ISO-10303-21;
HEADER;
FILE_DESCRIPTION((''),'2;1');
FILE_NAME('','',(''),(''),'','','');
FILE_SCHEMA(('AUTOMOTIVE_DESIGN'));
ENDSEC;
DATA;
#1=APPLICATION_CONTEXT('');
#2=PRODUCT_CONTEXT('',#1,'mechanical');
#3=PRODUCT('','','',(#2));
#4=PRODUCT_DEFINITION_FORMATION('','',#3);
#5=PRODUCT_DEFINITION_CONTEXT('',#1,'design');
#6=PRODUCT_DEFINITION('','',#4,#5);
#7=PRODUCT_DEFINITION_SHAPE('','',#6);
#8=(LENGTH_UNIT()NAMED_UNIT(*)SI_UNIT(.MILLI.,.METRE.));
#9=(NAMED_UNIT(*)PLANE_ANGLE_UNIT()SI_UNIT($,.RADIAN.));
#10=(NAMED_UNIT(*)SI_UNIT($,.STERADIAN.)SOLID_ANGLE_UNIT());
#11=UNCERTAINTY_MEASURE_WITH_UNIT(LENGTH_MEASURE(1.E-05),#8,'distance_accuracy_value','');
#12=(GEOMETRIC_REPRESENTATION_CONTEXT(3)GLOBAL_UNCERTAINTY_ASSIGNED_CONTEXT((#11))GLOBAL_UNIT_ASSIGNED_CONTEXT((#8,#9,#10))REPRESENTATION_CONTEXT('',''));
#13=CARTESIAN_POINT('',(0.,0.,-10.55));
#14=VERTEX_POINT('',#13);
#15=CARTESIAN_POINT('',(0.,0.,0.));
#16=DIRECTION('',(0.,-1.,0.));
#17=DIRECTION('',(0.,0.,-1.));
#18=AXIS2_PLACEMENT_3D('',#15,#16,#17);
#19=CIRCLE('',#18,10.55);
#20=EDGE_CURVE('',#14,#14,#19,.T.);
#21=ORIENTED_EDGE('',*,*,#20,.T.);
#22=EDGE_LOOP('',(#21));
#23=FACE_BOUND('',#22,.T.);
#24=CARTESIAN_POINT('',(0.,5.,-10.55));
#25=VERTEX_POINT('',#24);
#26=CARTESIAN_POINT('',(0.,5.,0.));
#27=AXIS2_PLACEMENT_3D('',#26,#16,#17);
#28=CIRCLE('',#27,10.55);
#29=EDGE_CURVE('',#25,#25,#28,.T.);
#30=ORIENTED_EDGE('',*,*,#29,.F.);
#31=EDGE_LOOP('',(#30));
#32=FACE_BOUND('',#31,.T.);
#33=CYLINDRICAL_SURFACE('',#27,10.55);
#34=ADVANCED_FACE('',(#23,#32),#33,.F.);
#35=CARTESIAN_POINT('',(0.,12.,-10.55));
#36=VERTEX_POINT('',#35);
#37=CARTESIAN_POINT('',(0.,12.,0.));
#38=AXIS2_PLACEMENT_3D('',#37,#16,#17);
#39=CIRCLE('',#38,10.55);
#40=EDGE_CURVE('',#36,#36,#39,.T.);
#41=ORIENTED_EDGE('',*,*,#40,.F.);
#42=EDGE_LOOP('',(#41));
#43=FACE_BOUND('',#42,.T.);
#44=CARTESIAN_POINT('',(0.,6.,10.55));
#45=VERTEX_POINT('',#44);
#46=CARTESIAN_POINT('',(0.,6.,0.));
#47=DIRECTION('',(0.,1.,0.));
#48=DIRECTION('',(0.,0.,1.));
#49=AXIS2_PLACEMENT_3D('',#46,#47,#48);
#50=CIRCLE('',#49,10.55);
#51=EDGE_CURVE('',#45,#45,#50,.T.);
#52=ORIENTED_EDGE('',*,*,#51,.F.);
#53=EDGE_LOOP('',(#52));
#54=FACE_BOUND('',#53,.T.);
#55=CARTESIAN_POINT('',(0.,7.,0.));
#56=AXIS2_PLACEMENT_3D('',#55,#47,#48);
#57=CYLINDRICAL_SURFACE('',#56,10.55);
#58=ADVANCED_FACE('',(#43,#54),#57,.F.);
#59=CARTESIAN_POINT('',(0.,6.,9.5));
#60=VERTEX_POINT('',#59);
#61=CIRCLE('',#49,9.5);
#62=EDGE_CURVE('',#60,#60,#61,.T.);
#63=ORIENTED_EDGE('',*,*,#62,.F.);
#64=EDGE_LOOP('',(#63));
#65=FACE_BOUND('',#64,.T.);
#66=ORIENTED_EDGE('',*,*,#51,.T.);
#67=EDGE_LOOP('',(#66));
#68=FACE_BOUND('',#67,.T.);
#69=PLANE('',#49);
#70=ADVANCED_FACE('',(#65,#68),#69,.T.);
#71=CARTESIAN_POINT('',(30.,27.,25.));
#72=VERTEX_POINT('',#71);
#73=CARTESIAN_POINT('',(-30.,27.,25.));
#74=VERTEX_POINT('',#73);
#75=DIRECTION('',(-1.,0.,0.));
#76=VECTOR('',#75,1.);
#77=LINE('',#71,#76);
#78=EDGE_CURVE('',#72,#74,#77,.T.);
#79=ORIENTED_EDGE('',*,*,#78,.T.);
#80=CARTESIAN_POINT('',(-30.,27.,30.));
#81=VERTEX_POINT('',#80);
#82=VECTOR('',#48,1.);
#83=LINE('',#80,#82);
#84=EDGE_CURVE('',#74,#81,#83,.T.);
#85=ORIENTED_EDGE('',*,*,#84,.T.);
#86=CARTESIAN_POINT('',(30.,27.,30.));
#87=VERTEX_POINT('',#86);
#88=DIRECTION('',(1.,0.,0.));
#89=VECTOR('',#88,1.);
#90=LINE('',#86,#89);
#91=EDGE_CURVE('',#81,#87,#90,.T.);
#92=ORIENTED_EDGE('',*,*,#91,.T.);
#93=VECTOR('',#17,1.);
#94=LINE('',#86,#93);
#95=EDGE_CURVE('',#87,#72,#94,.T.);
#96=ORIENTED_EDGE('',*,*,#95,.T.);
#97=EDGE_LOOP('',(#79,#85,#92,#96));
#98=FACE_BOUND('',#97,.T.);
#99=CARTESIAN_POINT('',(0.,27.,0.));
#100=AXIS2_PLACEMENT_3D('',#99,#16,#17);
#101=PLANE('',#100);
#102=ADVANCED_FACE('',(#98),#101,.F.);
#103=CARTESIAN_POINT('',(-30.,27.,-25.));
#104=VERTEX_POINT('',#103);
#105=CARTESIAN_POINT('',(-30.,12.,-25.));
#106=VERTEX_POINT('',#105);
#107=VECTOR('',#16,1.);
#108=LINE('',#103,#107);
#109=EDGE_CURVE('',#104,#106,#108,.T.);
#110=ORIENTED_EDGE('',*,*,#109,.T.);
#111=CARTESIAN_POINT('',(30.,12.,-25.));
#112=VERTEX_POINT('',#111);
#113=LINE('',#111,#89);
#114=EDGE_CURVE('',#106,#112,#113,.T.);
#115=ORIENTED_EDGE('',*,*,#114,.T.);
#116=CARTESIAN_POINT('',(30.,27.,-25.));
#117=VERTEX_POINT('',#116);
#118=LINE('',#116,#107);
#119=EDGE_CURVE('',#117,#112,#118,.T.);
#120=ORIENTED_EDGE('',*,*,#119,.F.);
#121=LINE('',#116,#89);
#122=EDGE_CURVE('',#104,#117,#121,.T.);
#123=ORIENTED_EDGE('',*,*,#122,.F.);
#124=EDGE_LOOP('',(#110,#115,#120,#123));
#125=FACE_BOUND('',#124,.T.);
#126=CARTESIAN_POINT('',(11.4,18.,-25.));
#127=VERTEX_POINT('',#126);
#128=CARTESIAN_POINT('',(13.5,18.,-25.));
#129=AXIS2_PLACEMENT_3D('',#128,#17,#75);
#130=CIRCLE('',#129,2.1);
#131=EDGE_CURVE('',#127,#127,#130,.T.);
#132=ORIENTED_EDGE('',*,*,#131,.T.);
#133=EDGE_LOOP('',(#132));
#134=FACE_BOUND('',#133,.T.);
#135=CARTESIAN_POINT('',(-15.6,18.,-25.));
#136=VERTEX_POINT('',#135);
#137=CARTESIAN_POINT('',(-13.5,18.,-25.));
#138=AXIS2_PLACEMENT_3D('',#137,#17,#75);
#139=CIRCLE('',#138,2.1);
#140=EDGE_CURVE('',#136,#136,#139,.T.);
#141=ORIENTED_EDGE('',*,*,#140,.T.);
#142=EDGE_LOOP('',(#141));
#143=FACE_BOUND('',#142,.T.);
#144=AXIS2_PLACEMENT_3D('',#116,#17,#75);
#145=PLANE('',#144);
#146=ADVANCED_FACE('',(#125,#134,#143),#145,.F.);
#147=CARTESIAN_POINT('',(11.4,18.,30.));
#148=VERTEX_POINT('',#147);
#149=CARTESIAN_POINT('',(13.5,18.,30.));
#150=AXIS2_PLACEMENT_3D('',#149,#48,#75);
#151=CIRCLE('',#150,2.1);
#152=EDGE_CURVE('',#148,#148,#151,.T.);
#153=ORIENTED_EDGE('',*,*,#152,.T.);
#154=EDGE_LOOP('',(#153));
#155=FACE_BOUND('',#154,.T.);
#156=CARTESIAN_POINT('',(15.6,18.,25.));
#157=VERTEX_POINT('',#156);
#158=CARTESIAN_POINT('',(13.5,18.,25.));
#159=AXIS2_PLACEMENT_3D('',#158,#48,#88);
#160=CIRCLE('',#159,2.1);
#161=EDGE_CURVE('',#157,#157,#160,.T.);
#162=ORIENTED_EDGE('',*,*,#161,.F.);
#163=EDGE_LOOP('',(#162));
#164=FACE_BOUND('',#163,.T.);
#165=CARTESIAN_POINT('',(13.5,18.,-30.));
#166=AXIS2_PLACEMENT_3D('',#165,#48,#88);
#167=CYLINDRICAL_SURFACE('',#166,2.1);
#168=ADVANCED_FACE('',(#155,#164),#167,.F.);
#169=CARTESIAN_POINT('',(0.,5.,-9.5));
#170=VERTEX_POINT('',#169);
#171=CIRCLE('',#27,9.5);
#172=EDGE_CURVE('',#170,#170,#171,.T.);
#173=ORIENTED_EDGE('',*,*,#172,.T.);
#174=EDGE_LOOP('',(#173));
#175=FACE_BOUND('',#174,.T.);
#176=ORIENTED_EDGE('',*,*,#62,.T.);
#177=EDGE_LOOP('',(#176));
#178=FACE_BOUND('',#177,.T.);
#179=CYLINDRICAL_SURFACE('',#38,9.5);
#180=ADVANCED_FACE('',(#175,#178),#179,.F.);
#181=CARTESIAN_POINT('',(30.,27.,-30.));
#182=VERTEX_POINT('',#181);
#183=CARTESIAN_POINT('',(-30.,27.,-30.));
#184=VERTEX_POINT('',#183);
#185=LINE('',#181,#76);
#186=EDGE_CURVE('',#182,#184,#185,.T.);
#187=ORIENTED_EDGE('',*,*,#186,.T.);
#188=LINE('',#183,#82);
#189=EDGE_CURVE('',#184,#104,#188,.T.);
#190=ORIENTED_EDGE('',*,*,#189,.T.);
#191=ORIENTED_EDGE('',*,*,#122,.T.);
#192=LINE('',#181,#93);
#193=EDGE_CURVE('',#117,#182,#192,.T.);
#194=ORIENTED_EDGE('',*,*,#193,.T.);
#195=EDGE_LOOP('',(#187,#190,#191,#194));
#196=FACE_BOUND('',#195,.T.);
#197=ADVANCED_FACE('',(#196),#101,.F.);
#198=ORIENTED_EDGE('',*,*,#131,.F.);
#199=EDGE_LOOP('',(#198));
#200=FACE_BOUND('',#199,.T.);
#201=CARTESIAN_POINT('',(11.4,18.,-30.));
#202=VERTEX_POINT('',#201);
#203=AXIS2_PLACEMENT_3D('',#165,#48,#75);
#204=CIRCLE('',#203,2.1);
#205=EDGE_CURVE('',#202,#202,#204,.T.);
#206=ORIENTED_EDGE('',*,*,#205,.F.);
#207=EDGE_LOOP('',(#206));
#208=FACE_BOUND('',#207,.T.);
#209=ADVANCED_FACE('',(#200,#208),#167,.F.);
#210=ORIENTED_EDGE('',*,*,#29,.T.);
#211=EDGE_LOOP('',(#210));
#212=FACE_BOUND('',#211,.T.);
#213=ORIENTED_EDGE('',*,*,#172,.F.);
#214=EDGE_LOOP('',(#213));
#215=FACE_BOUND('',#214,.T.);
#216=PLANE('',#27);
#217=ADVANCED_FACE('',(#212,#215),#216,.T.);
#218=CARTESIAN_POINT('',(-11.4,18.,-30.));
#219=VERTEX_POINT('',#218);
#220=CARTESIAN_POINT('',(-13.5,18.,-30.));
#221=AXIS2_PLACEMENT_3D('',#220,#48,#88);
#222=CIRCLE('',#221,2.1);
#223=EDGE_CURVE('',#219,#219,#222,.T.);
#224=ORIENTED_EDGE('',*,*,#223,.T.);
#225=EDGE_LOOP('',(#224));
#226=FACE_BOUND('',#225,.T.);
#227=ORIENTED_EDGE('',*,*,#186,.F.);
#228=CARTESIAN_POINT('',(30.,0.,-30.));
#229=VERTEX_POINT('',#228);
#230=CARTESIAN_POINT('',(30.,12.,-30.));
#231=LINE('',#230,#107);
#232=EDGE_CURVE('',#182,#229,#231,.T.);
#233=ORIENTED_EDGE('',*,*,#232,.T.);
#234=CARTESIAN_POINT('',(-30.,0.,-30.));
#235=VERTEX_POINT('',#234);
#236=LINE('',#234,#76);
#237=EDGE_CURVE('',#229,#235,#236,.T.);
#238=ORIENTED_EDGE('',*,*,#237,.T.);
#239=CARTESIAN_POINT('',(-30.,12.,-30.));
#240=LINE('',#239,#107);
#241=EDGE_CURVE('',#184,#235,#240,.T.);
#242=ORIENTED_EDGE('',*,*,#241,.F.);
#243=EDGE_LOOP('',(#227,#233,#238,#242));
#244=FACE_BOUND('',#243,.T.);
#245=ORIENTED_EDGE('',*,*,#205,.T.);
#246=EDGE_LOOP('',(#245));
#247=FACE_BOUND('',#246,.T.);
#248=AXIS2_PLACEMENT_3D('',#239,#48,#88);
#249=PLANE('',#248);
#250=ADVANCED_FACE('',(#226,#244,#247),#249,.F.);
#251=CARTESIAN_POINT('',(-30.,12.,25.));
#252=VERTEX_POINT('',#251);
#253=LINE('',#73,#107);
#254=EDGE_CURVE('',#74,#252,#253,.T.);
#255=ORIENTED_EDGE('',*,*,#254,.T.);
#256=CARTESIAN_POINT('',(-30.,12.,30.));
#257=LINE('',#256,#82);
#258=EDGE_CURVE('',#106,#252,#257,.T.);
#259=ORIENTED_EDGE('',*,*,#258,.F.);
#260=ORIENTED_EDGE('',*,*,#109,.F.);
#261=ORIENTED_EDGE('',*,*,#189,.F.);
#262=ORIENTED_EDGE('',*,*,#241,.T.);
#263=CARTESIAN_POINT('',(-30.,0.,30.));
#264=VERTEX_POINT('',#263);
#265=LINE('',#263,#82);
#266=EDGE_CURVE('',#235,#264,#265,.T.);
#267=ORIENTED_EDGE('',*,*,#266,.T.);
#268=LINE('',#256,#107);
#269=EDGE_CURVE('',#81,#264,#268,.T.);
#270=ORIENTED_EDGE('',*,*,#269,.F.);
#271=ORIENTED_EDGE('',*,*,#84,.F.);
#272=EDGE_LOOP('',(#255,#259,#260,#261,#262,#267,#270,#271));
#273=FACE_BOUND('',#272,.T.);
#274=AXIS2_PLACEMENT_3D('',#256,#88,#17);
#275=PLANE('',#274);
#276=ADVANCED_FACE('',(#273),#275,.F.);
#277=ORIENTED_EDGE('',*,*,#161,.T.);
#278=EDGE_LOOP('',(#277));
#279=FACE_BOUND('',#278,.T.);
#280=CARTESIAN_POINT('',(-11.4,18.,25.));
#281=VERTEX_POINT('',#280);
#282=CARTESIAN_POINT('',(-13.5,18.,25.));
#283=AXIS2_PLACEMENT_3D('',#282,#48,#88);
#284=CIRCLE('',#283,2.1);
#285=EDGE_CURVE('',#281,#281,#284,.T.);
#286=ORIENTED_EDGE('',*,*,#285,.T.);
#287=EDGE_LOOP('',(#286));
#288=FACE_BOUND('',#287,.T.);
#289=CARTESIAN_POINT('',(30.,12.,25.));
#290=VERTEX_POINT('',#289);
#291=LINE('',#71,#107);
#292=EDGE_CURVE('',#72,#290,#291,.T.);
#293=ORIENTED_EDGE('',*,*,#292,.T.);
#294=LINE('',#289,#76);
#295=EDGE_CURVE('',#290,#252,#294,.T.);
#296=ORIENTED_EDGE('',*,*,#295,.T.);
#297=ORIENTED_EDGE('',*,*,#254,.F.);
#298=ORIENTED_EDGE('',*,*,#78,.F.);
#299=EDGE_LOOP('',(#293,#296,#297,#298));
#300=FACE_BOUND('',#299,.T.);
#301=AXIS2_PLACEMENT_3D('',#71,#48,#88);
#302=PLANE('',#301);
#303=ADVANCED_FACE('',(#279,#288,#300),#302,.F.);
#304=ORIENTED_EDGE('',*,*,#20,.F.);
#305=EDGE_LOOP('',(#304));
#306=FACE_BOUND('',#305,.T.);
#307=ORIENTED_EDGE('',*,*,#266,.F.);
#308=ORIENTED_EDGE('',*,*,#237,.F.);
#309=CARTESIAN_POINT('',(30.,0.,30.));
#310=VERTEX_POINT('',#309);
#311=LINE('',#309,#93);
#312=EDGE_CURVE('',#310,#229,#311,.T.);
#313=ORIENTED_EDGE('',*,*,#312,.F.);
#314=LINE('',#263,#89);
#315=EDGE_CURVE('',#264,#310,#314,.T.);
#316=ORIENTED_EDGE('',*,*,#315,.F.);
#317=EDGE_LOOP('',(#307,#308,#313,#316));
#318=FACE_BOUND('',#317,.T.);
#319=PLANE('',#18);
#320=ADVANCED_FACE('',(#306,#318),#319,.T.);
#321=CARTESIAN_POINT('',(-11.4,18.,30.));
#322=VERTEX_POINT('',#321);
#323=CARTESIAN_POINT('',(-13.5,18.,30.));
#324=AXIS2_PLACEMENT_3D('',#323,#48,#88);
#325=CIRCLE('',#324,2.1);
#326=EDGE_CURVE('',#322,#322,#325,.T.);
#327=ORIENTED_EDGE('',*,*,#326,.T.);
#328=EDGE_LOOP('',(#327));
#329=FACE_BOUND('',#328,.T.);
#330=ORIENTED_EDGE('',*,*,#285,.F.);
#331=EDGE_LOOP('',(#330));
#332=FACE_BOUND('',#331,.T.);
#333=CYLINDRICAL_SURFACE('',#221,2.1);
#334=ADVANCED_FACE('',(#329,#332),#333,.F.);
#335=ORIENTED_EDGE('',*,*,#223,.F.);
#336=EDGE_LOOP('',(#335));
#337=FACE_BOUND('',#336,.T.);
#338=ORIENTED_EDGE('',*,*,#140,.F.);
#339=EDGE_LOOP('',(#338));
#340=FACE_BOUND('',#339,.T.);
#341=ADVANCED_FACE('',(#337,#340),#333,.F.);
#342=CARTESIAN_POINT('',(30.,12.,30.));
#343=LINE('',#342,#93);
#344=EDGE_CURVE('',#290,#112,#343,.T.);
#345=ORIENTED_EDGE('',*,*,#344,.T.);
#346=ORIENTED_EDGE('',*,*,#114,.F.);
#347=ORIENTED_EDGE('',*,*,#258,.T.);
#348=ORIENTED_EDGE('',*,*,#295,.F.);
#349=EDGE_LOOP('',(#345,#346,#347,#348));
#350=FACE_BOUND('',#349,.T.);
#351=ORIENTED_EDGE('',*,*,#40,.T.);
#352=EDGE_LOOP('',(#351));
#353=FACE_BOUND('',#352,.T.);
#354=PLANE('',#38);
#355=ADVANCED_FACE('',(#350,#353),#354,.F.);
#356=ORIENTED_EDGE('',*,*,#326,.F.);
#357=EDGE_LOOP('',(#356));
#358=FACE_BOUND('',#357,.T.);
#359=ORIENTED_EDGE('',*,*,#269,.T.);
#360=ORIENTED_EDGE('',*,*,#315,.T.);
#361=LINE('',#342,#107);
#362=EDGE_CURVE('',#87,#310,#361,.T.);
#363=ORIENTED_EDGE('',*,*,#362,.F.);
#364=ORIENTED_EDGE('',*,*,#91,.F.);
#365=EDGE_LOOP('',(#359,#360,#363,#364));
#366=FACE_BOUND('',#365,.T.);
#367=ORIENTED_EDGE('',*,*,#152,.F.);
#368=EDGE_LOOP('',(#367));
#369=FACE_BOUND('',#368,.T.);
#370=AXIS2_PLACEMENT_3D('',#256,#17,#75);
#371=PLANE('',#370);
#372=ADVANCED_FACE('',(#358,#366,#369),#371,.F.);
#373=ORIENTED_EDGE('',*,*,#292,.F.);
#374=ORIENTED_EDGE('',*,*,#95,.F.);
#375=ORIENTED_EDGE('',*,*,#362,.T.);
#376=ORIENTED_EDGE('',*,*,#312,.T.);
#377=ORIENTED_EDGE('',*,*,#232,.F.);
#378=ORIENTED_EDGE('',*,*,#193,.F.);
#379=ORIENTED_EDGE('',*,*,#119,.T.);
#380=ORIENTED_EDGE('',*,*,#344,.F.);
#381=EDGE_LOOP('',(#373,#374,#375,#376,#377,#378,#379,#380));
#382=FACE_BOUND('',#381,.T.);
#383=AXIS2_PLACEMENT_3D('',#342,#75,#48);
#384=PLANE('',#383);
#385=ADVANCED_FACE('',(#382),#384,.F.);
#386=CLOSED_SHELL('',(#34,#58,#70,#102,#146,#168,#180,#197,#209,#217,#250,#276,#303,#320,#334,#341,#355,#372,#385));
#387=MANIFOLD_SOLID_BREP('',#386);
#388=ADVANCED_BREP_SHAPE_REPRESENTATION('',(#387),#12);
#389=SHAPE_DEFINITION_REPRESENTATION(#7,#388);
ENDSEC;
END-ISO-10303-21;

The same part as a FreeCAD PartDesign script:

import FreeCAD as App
import Part
import Sketcher


def add_polygon(sketch, points):
    """Adds a closed chain of lines whose ends are joined by coincident constraints."""
    first, n = sketch.GeometryCount, len(points)
    for a, b in zip(points, points[1:] + points[:1]):
        sketch.addGeometry(Part.LineSegment(App.Vector(*a, 0), App.Vector(*b, 0)), False)
    for i in range(n):
        sketch.addConstraint(Sketcher.Constraint("Coincident", first + i, 2, first + (i + 1) % n, 1))

doc = App.newDocument("Part")
body = doc.addObject("PartDesign::Body", "Body")

sketch1 = doc.addObject("Sketcher::SketchObject", "Sketch")
body.addObject(sketch1)
sketch1.AttachmentSupport = (doc.XZ_Plane, [""])
sketch1.MapMode = "FlatFace"
add_polygon(sketch1, [(-30, -30), (-30, 30), (30, 30), (30, -30)])
sketch1.addGeometry(Part.Circle(App.Vector(0, 0, 0), App.Vector(0, 0, 1), 9.5), False)
sketch1.addConstraint([
    Sketcher.Constraint("Vertical", 0),
    Sketcher.Constraint("Horizontal", 1),
    Sketcher.Constraint("Vertical", 2),
    Sketcher.Constraint("Horizontal", 3),
    Sketcher.Constraint("Coincident", 4, 3, -1, 1),
    Sketcher.Constraint("Symmetric", 0, 2, 2, 2, -1, 1),
    Sketcher.Constraint("Equal", 3, 0),
    Sketcher.Constraint("Diameter", 4, 19.0),
    Sketcher.Constraint("DistanceX", 1, 1, 1, 2, 60.0),
])
pad1 = doc.addObject("PartDesign::Pad", "Pad")
body.addObject(pad1)
pad1.Profile = sketch1
pad1.Length = 12
pad1.Reversed = True

sketch2 = doc.addObject("Sketcher::SketchObject", "Sketch001")
body.addObject(sketch2)
sketch2.AttachmentSupport = (doc.XZ_Plane, [""])
sketch2.MapMode = "FlatFace"
sketch2.addGeometry(Part.Circle(App.Vector(0, 0, 0), App.Vector(0, 0, 1), 10.55), False)
sketch2.addConstraint([
    Sketcher.Constraint("Coincident", 0, 3, -1, 1),
    Sketcher.Constraint("Diameter", 0, 21.1),
])
pocket1 = doc.addObject("PartDesign::Pocket", "Pocket")
body.addObject(pocket1)
pocket1.Profile = sketch2
pocket1.Length = 5
doc.recompute()

datumplane = doc.addObject("PartDesign::Plane", "DatumPlane")
body.addObject(datumplane)
datumplane.AttachmentSupport = (doc.XZ_Plane, [""])
datumplane.MapMode = "FlatFace"
datumplane.AttachmentOffset = App.Placement(App.Vector(0, 0, -6), App.Rotation())
mirrored = doc.addObject("PartDesign::Mirrored", "Mirrored")
body.addObject(mirrored)
mirrored.Originals = [pocket1]
mirrored.MirrorPlane = (datumplane, [""])
body.Tip = mirrored

sketch3 = doc.addObject("Sketcher::SketchObject", "Sketch002")
body.addObject(sketch3)
sketch3.AttachmentSupport = (doc.XZ_Plane, [""])
sketch3.MapMode = "FlatFace"
sketch3.AttachmentOffset = App.Placement(App.Vector(0, 0, -12), App.Rotation())
add_polygon(sketch3, [(-30, -30), (-30, -25), (30, -25), (30, -30)])
add_polygon(sketch3, [(-30, 25), (-30, 30), (30, 30), (30, 25)])
sketch3.addConstraint([
    Sketcher.Constraint("Vertical", 0),
    Sketcher.Constraint("Horizontal", 1),
    Sketcher.Constraint("Vertical", 2),
    Sketcher.Constraint("Horizontal", 3),
    Sketcher.Constraint("Vertical", 4),
    Sketcher.Constraint("Horizontal", 5),
    Sketcher.Constraint("Vertical", 6),
    Sketcher.Constraint("Horizontal", 7),
    Sketcher.Constraint("Symmetric", 2, 2, 4, 2, -1, 1),
    Sketcher.Constraint("Symmetric", 0, 2, 6, 2, -1, 1),
    Sketcher.Constraint("Vertical", 3, 2, 4, 2),
    Sketcher.Constraint("DistanceX", 1, 1, 1, 2, 60.0),
    Sketcher.Constraint("DistanceY", 0, 1, 0, 2, 5.0),
    Sketcher.Constraint("DistanceY", 0, 2, -1, 1, 25.0),
])
pad2 = doc.addObject("PartDesign::Pad", "Pad001")
body.addObject(pad2)
pad2.Profile = sketch3
pad2.Length = 15
pad2.Reversed = True

sketch4 = doc.addObject("Sketcher::SketchObject", "Sketch003")
body.addObject(sketch4)
sketch4.AttachmentSupport = (doc.XY_Plane, [""])
sketch4.MapMode = "FlatFace"
sketch4.AttachmentOffset = App.Placement(App.Vector(0, 0, 30), App.Rotation())
sketch4.addGeometry([
    Part.Circle(App.Vector(-13.5, 18, 0), App.Vector(0, 0, 1), 2.1),
    Part.Circle(App.Vector(13.5, 18, 0), App.Vector(0, 0, 1), 2.1),
], False)
sketch4.addConstraint([
    Sketcher.Constraint("Equal", 0, 1),
    Sketcher.Constraint("Symmetric", 0, 3, 1, 3, -2),
    Sketcher.Constraint("Diameter", 0, 4.2),
    Sketcher.Constraint("DistanceY", -1, 1, 0, 3, 18.0),
    Sketcher.Constraint("DistanceX", 0, 3, 1, 3, 27.0),
])
pocket2 = doc.addObject("PartDesign::Pocket", "Pocket001")
body.addObject(pocket2)
pocket2.Profile = sketch4
pocket2.Type = "ThroughAll"

sketch5 = doc.addObject("Sketcher::SketchObject", "Sketch004")
body.addObject(sketch5)
sketch5.AttachmentSupport = (doc.XZ_Plane, [""])
sketch5.MapMode = "FlatFace"
sketch5.AttachmentOffset = App.Placement(App.Vector(0, 0, -7), App.Rotation())
sketch5.addGeometry(Part.Circle(App.Vector(0, 0, 0), App.Vector(0, 0, 1), 10.55), False)
sketch5.addConstraint([
    Sketcher.Constraint("Coincident", 0, 3, -1, 1),
    Sketcher.Constraint("Diameter", 0, 21.1),
])
pocket3 = doc.addObject("PartDesign::Pocket", "Pocket002")
body.addObject(pocket3)
pocket3.Profile = sketch5
pocket3.Length = 1
pocket3.Reversed = True

doc.recompute()
